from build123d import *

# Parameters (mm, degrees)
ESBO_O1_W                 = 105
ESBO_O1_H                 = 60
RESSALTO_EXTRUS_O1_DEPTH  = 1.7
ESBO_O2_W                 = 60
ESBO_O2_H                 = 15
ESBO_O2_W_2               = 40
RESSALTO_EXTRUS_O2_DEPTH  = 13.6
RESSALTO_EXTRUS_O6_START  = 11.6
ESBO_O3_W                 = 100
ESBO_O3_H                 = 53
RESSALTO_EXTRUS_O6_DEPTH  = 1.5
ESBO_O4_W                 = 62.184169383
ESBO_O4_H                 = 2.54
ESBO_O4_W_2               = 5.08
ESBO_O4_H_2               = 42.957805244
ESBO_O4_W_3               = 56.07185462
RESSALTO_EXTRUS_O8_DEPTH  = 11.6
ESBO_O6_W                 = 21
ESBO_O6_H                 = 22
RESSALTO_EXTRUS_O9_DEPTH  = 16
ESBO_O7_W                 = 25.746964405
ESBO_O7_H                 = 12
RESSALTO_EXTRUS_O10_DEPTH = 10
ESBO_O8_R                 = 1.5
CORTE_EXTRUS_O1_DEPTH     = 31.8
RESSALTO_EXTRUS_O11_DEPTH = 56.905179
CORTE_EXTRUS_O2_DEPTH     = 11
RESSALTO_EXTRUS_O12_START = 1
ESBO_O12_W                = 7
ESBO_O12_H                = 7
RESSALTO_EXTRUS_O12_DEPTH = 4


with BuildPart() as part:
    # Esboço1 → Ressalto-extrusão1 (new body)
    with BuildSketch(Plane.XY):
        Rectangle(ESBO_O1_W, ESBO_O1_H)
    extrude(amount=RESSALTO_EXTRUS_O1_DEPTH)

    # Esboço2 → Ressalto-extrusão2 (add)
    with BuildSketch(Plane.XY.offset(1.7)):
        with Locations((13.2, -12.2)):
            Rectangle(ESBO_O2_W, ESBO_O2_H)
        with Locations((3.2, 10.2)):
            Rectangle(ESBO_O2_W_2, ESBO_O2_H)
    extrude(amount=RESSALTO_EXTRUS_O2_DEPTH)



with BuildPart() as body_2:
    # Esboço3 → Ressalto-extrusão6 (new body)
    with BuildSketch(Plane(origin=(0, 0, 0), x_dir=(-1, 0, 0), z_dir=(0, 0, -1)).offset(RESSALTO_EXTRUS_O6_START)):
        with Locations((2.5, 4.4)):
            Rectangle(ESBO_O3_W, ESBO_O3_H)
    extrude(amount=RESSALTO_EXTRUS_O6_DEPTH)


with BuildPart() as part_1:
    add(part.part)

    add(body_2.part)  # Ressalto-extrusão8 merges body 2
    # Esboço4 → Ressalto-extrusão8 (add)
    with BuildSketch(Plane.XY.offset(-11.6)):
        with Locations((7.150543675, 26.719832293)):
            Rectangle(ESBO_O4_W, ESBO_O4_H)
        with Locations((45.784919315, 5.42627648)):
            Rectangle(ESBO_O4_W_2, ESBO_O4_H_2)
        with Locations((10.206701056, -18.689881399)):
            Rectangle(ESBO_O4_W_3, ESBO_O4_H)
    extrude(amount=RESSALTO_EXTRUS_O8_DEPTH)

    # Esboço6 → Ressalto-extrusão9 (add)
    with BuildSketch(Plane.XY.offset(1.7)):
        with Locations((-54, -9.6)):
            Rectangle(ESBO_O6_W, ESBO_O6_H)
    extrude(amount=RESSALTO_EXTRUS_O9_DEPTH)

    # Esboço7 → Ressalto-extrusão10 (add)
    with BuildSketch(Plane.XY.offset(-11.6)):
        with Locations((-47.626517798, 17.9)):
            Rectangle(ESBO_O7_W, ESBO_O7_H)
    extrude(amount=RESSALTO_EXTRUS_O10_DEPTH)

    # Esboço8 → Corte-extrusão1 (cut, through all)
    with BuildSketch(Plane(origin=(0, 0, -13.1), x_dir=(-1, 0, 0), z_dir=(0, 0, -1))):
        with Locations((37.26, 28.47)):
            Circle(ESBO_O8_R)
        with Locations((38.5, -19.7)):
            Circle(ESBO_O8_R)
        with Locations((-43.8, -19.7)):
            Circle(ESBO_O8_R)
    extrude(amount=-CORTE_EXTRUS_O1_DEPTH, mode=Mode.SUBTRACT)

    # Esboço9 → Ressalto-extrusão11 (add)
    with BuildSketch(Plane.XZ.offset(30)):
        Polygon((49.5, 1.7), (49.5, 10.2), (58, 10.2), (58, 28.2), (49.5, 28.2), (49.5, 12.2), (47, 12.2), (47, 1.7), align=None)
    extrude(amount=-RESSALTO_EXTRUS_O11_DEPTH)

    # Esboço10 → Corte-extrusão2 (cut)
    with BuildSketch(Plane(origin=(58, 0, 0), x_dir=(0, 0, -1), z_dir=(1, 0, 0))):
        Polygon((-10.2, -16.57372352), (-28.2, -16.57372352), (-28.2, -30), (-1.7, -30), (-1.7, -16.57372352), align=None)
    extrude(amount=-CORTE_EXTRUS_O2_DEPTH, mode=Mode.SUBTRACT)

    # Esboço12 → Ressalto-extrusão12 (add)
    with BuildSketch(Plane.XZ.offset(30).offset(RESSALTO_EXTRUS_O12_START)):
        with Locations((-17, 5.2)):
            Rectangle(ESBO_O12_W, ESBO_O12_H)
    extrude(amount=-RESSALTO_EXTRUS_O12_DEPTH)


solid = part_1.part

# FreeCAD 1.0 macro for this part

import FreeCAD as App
import Part
import Sketcher
from FreeCAD import Vector


def add_polygon(sketch, points):
    """Adds a closed chain of lines whose ends are joined by coincident constraints."""
    first, n = sketch.GeometryCount, len(points)
    for a, b in zip(points, points[1:] + points[:1]):
        sketch.addGeometry(Part.LineSegment(App.Vector(*a, 0), App.Vector(*b, 0)), False)
    for i in range(n):
        sketch.addConstraint(Sketcher.Constraint("Coincident", first + i, 2, first + (i + 1) % n, 1))

doc = App.newDocument("Part")
body = doc.addObject("PartDesign::Body", "Body")

sketch1 = body.newObject("Sketcher::SketchObject", "Sketch")
sketch1.AttachmentSupport = (doc.getObject("XY_Plane"), [""])
sketch1.MapMode = "FlatFace"
add_polygon(sketch1, [(-52.5, 30), (-52.5, -30), (52.5, -30), (52.5, 30)])
sketch1.addConstraint([
    Sketcher.Constraint("Vertical", 0),
    Sketcher.Constraint("Horizontal", 1),
    Sketcher.Constraint("Vertical", 2),
    Sketcher.Constraint("Horizontal", 3),
    Sketcher.Constraint("Symmetric", 0, 2, 2, 2, -1, 1),
    Sketcher.Constraint("DistanceX", 1, 1, 1, 2, 105.0),
    Sketcher.Constraint("DistanceY", 0, 2, 0, 1, 60.0),
])
pad1 = body.newObject("PartDesign::Pad", "Pad")
pad1.Profile = sketch1
pad1.Length = 1.7

sketch2 = body.newObject("Sketcher::SketchObject", "Sketch001")
sketch2.AttachmentSupport = (doc.getObject("XY_Plane"), [""])
sketch2.MapMode = "FlatFace"
sketch2.AttachmentOffset = App.Placement(Vector(0, 0, 1.7), App.Rotation())
add_polygon(sketch2, [(-16.8, -4.7), (-16.8, -19.7), (43.2, -19.7), (43.2, -4.7)])
add_polygon(sketch2, [(-16.8, 17.7), (-16.8, 2.7), (23.2, 2.7), (23.2, 17.7)])
sketch2.addConstraint([
    Sketcher.Constraint("Vertical", 0),
    Sketcher.Constraint("Horizontal", 1),
    Sketcher.Constraint("Vertical", 2),
    Sketcher.Constraint("Horizontal", 3),
    Sketcher.Constraint("Vertical", 4),
    Sketcher.Constraint("Horizontal", 5),
    Sketcher.Constraint("Vertical", 6),
    Sketcher.Constraint("Horizontal", 7),
    Sketcher.Constraint("Vertical", 3, 2, 4, 2),
    Sketcher.Constraint("Equal", 2, 4),
    Sketcher.Constraint("DistanceX", 1, 1, 1, 2, 60.0),
    Sketcher.Constraint("DistanceX", 5, 1, 5, 2, 40.0),
    Sketcher.Constraint("DistanceY", 0, 2, 0, 1, 15.0),
    Sketcher.Constraint("DistanceX", 0, 2, -1, 1, 16.8),
    Sketcher.Constraint("DistanceY", 0, 2, -1, 1, 19.7),
    Sketcher.Constraint("DistanceY", -1, 1, 4, 2, 2.7),
])
pad2 = body.newObject("PartDesign::Pad", "Pad001")
pad2.Profile = sketch2
pad2.Length = 13.6
body2 = doc.addObject("PartDesign::Body", "Body001")

sketch3 = body2.newObject("Sketcher::SketchObject", "Sketch002")
sketch3.AttachmentSupport = (doc.getObject("XY_Plane001"), [""])
sketch3.MapMode = "FlatFace"
sketch3.AttachmentOffset = App.Placement(Vector(0, 0, -11.6), App.Rotation())
add_polygon(sketch3, [(47.5, 30.9), (47.5, -22.1), (-52.5, -22.1), (-52.5, 30.9)])
sketch3.addConstraint([
    Sketcher.Constraint("Vertical", 0),
    Sketcher.Constraint("Horizontal", 1),
    Sketcher.Constraint("Vertical", 2),
    Sketcher.Constraint("Horizontal", 3),
    Sketcher.Constraint("DistanceX", 1, 2, 1, 1, 100.0),
    Sketcher.Constraint("DistanceY", 0, 2, 0, 1, 53.0),
    Sketcher.Constraint("DistanceX", -1, 1, 0, 2, 47.5),
    Sketcher.Constraint("DistanceY", 0, 2, -1, 1, 22.1),
])
pad3 = body2.newObject("PartDesign::Pad", "Pad002")
pad3.Profile = sketch3
pad3.Length = 1.5
pad3.Reversed = True
body.AllowCompound = True
doc.recompute()

boolean = body.newObject("PartDesign::Boolean", "Boolean")
boolean.Type = "Fuse"
boolean.addObjects([body2])

sketch4 = body.newObject("Sketcher::SketchObject", "Sketch003")
sketch4.AttachmentSupport = (doc.getObject("XY_Plane"), [""])
sketch4.MapMode = "FlatFace"
sketch4.AttachmentOffset = App.Placement(Vector(0, 0, -11.6), App.Rotation())
add_polygon(sketch4, [(-23.941541, 27.989832), (-23.941541, 25.449832), (38.242628, 25.449832), (38.242628, 27.989832)])
add_polygon(sketch4, [(43.244919, 26.905179), (43.244919, -16.052626), (48.324919, -16.052626), (48.324919, 26.905179)])
add_polygon(sketch4, [(-17.829226, -17.419881), (-17.829226, -19.959881), (38.242628, -19.959881), (38.242628, -17.419881)])
sketch4.addConstraint([
    Sketcher.Constraint("Vertical", 0),
    Sketcher.Constraint("Horizontal", 1),
    Sketcher.Constraint("Vertical", 2),
    Sketcher.Constraint("Horizontal", 3),
    Sketcher.Constraint("Vertical", 4),
    Sketcher.Constraint("Horizontal", 5),
    Sketcher.Constraint("Vertical", 6),
    Sketcher.Constraint("Horizontal", 7),
    Sketcher.Constraint("Vertical", 8),
    Sketcher.Constraint("Horizontal", 9),
    Sketcher.Constraint("Vertical", 10),
    Sketcher.Constraint("Horizontal", 11),
    Sketcher.Constraint("Vertical", 2, 2, 9, 2),
    Sketcher.Constraint("Equal", 2, 8),
    Sketcher.Constraint("DistanceX", 5, 1, 5, 2, 5.08),
    Sketcher.Constraint("DistanceY", 0, 2, 0, 1, 2.54),
    Sketcher.Constraint("DistanceX", 1, 1, 1, 2, 62.184169),
    Sketcher.Constraint("DistanceX", 9, 1, 9, 2, 56.071855),
    Sketcher.Constraint("DistanceY", 4, 2, 4, 1, 42.957805),
    Sketcher.Constraint("DistanceX", 0, 2, -1, 1, 23.941541),
    Sketcher.Constraint("DistanceX", -1, 1, 4, 2, 43.244919),
    Sketcher.Constraint("DistanceY", -1, 1, 6, 2, 26.905179),
    Sketcher.Constraint("DistanceY", 8, 2, -1, 1, 19.959881),
    Sketcher.Constraint("DistanceY", 4, 2, 1, 2, 41.502458),
])
pad4 = body.newObject("PartDesign::Pad", "Pad003")
pad4.Profile = sketch4
pad4.Length = 11.6

sketch5 = body.newObject("Sketcher::SketchObject", "Sketch004")
sketch5.AttachmentSupport = (doc.getObject("XY_Plane"), [""])
sketch5.MapMode = "FlatFace"
sketch5.AttachmentOffset = App.Placement(Vector(0, 0, 1.7), App.Rotation())
add_polygon(sketch5, [(-64.5, 1.4), (-64.5, -20.6), (-43.5, -20.6), (-43.5, 1.4)])
sketch5.addConstraint([
    Sketcher.Constraint("Vertical", 0),
    Sketcher.Constraint("Horizontal", 1),
    Sketcher.Constraint("Vertical", 2),
    Sketcher.Constraint("Horizontal", 3),
    Sketcher.Constraint("DistanceX", 1, 1, 1, 2, 21.0),
    Sketcher.Constraint("DistanceY", 0, 2, 0, 1, 22.0),
    Sketcher.Constraint("DistanceX", 0, 2, -1, 1, 64.5),
    Sketcher.Constraint("DistanceY", 0, 2, -1, 1, 20.6),
])
pad5 = body.newObject("PartDesign::Pad", "Pad004")
pad5.Profile = sketch5
pad5.Length = 16

sketch6 = body.newObject("Sketcher::SketchObject", "Sketch005")
sketch6.AttachmentSupport = (doc.getObject("XY_Plane"), [""])
sketch6.MapMode = "FlatFace"
sketch6.AttachmentOffset = App.Placement(Vector(0, 0, -11.6), App.Rotation())
add_polygon(sketch6, [(-60.5, 23.9), (-60.5, 11.9), (-34.753036, 11.9), (-34.753036, 23.9)])
sketch6.addConstraint([
    Sketcher.Constraint("Vertical", 0),
    Sketcher.Constraint("Horizontal", 1),
    Sketcher.Constraint("Vertical", 2),
    Sketcher.Constraint("Horizontal", 3),
    Sketcher.Constraint("DistanceY", 0, 2, 0, 1, 12.0),
    Sketcher.Constraint("DistanceX", 0, 2, -1, 1, 60.5),
    Sketcher.Constraint("DistanceY", -1, 1, 0, 2, 11.9),
    Sketcher.Constraint("DistanceX", 1, 1, 1, 2, 25.746964),
])
pad6 = body.newObject("PartDesign::Pad", "Pad005")
pad6.Profile = sketch6
pad6.Length = 10

sketch7 = body.newObject("Sketcher::SketchObject", "Sketch006")
sketch7.AttachmentSupport = (doc.getObject("XY_Plane"), [""])
sketch7.MapMode = "FlatFace"
sketch7.AttachmentOffset = App.Placement(Vector(0, 0, -13.1), App.Rotation())
sketch7.addGeometry([
    Part.Circle(Vector(-37.26, 28.47, 0), Vector(0, 0, 1), 1.5),
    Part.Circle(Vector(-38.5, -19.7, 0), Vector(0, 0, 1), 1.5),
    Part.Circle(Vector(43.8, -19.7, 0), Vector(0, 0, 1), 1.5),
], False)
sketch7.addConstraint([
    Sketcher.Constraint("Equal", 0, 1),
    Sketcher.Constraint("Equal", 1, 2),
    Sketcher.Constraint("Horizontal", 1, 3, 2, 3),
    Sketcher.Constraint("Diameter", 0, 3.0),
    Sketcher.Constraint("DistanceX", 1, 3, -1, 1, 38.5),
    Sketcher.Constraint("DistanceY", 1, 3, -1, 1, 19.7),
    Sketcher.Constraint("DistanceX", -1, 1, 2, 3, 43.8),
    Sketcher.Constraint("DistanceX", 0, 3, -1, 1, 37.26),
    Sketcher.Constraint("DistanceY", -1, 1, 0, 3, 28.47),
])
pocket1 = body.newObject("PartDesign::Pocket", "Pocket")
pocket1.Profile = sketch7
pocket1.Type = "ThroughAll"
pocket1.Reversed = True

sketch8 = body.newObject("Sketcher::SketchObject", "Sketch007")
sketch8.AttachmentSupport = (doc.getObject("XZ_Plane"), [""])
sketch8.MapMode = "FlatFace"
sketch8.AttachmentOffset = App.Placement(Vector(0, 0, 30), App.Rotation())
add_polygon(sketch8, [(49.5, 1.7), (49.5, 10.2), (58, 10.2), (58, 28.2), (49.5, 28.2), (49.5, 12.2), (47, 12.2), (47, 1.7)])
sketch8.addConstraint([
    Sketcher.Constraint("Vertical", 0),
    Sketcher.Constraint("Horizontal", 1),
    Sketcher.Constraint("Vertical", 2),
    Sketcher.Constraint("Horizontal", 3),
    Sketcher.Constraint("Vertical", 4),
    Sketcher.Constraint("Horizontal", 5),
    Sketcher.Constraint("Vertical", 6),
    Sketcher.Constraint("Horizontal", 7),
    Sketcher.Constraint("Vertical", 0, 2, 3, 2),
    Sketcher.Constraint("Equal", 3, 0),
    Sketcher.Constraint("DistanceY", 2, 1, 2, 2, 18.0),
    Sketcher.Constraint("DistanceY", 4, 2, 4, 1, 16.0),
    Sketcher.Constraint("DistanceX", 1, 1, 1, 2, 8.5),
    Sketcher.Constraint("DistanceX", 5, 2, 5, 1, 2.5),
    Sketcher.Constraint("DistanceX", -1, 1, 1, 2, 58.0),
    Sketcher.Constraint("DistanceY", -1, 1, 0, 2, 10.2),
])
pad7 = body.newObject("PartDesign::Pad", "Pad006")
pad7.Profile = sketch8
pad7.Length = 56.905179
pad7.Reversed = True

sketch9 = body.newObject("Sketcher::SketchObject", "Sketch008")
sketch9.AttachmentSupport = (doc.getObject("YZ_Plane"), [""])
sketch9.MapMode = "FlatFace"
sketch9.AttachmentOffset = App.Placement(Vector(0, 0, 58), App.Rotation())
add_polygon(sketch9, [(-16.573724, 28.2), (-30, 28.2), (-30, 1.7), (-16.573724, 1.7)])
sketch9.addConstraint([
    Sketcher.Constraint("Horizontal", 0),
    Sketcher.Constraint("Vertical", 1),
    Sketcher.Constraint("Horizontal", 2),
    Sketcher.Constraint("Vertical", 3),
    Sketcher.Constraint("DistanceY", 1, 2, 1, 1, 26.5),
    Sketcher.Constraint("DistanceX", 0, 2, -1, 1, 30.0),
    Sketcher.Constraint("DistanceY", -1, 1, 0, 2, 28.2),
    Sketcher.Constraint("DistanceX", 0, 2, 0, 1, 13.426276),
])
pocket2 = body.newObject("PartDesign::Pocket", "Pocket001")
pocket2.Profile = sketch9
pocket2.Length = 11

sketch10 = body.newObject("Sketcher::SketchObject", "Sketch009")
sketch10.AttachmentSupport = (doc.getObject("XZ_Plane"), [""])
sketch10.MapMode = "FlatFace"
sketch10.AttachmentOffset = App.Placement(Vector(0, 0, 31), App.Rotation())
add_polygon(sketch10, [(-20.5, 8.7), (-20.5, 1.7), (-13.5, 1.7), (-13.5, 8.7)])
sketch10.addConstraint([
    Sketcher.Constraint("Vertical", 0),
    Sketcher.Constraint("Horizontal", 1),
    Sketcher.Constraint("Vertical", 2),
    Sketcher.Constraint("Horizontal", 3),
    Sketcher.Constraint("Equal", 3, 0),
    Sketcher.Constraint("DistanceX", 1, 1, 1, 2, 7.0),
    Sketcher.Constraint("DistanceX", 0, 2, -1, 1, 20.5),
    Sketcher.Constraint("DistanceY", -1, 1, 0, 2, 1.7),
])
pad8 = body.newObject("PartDesign::Pad", "Pad007")
pad8.Profile = sketch10
pad8.Length = 4
pad8.Reversed = True

doc.recompute()
